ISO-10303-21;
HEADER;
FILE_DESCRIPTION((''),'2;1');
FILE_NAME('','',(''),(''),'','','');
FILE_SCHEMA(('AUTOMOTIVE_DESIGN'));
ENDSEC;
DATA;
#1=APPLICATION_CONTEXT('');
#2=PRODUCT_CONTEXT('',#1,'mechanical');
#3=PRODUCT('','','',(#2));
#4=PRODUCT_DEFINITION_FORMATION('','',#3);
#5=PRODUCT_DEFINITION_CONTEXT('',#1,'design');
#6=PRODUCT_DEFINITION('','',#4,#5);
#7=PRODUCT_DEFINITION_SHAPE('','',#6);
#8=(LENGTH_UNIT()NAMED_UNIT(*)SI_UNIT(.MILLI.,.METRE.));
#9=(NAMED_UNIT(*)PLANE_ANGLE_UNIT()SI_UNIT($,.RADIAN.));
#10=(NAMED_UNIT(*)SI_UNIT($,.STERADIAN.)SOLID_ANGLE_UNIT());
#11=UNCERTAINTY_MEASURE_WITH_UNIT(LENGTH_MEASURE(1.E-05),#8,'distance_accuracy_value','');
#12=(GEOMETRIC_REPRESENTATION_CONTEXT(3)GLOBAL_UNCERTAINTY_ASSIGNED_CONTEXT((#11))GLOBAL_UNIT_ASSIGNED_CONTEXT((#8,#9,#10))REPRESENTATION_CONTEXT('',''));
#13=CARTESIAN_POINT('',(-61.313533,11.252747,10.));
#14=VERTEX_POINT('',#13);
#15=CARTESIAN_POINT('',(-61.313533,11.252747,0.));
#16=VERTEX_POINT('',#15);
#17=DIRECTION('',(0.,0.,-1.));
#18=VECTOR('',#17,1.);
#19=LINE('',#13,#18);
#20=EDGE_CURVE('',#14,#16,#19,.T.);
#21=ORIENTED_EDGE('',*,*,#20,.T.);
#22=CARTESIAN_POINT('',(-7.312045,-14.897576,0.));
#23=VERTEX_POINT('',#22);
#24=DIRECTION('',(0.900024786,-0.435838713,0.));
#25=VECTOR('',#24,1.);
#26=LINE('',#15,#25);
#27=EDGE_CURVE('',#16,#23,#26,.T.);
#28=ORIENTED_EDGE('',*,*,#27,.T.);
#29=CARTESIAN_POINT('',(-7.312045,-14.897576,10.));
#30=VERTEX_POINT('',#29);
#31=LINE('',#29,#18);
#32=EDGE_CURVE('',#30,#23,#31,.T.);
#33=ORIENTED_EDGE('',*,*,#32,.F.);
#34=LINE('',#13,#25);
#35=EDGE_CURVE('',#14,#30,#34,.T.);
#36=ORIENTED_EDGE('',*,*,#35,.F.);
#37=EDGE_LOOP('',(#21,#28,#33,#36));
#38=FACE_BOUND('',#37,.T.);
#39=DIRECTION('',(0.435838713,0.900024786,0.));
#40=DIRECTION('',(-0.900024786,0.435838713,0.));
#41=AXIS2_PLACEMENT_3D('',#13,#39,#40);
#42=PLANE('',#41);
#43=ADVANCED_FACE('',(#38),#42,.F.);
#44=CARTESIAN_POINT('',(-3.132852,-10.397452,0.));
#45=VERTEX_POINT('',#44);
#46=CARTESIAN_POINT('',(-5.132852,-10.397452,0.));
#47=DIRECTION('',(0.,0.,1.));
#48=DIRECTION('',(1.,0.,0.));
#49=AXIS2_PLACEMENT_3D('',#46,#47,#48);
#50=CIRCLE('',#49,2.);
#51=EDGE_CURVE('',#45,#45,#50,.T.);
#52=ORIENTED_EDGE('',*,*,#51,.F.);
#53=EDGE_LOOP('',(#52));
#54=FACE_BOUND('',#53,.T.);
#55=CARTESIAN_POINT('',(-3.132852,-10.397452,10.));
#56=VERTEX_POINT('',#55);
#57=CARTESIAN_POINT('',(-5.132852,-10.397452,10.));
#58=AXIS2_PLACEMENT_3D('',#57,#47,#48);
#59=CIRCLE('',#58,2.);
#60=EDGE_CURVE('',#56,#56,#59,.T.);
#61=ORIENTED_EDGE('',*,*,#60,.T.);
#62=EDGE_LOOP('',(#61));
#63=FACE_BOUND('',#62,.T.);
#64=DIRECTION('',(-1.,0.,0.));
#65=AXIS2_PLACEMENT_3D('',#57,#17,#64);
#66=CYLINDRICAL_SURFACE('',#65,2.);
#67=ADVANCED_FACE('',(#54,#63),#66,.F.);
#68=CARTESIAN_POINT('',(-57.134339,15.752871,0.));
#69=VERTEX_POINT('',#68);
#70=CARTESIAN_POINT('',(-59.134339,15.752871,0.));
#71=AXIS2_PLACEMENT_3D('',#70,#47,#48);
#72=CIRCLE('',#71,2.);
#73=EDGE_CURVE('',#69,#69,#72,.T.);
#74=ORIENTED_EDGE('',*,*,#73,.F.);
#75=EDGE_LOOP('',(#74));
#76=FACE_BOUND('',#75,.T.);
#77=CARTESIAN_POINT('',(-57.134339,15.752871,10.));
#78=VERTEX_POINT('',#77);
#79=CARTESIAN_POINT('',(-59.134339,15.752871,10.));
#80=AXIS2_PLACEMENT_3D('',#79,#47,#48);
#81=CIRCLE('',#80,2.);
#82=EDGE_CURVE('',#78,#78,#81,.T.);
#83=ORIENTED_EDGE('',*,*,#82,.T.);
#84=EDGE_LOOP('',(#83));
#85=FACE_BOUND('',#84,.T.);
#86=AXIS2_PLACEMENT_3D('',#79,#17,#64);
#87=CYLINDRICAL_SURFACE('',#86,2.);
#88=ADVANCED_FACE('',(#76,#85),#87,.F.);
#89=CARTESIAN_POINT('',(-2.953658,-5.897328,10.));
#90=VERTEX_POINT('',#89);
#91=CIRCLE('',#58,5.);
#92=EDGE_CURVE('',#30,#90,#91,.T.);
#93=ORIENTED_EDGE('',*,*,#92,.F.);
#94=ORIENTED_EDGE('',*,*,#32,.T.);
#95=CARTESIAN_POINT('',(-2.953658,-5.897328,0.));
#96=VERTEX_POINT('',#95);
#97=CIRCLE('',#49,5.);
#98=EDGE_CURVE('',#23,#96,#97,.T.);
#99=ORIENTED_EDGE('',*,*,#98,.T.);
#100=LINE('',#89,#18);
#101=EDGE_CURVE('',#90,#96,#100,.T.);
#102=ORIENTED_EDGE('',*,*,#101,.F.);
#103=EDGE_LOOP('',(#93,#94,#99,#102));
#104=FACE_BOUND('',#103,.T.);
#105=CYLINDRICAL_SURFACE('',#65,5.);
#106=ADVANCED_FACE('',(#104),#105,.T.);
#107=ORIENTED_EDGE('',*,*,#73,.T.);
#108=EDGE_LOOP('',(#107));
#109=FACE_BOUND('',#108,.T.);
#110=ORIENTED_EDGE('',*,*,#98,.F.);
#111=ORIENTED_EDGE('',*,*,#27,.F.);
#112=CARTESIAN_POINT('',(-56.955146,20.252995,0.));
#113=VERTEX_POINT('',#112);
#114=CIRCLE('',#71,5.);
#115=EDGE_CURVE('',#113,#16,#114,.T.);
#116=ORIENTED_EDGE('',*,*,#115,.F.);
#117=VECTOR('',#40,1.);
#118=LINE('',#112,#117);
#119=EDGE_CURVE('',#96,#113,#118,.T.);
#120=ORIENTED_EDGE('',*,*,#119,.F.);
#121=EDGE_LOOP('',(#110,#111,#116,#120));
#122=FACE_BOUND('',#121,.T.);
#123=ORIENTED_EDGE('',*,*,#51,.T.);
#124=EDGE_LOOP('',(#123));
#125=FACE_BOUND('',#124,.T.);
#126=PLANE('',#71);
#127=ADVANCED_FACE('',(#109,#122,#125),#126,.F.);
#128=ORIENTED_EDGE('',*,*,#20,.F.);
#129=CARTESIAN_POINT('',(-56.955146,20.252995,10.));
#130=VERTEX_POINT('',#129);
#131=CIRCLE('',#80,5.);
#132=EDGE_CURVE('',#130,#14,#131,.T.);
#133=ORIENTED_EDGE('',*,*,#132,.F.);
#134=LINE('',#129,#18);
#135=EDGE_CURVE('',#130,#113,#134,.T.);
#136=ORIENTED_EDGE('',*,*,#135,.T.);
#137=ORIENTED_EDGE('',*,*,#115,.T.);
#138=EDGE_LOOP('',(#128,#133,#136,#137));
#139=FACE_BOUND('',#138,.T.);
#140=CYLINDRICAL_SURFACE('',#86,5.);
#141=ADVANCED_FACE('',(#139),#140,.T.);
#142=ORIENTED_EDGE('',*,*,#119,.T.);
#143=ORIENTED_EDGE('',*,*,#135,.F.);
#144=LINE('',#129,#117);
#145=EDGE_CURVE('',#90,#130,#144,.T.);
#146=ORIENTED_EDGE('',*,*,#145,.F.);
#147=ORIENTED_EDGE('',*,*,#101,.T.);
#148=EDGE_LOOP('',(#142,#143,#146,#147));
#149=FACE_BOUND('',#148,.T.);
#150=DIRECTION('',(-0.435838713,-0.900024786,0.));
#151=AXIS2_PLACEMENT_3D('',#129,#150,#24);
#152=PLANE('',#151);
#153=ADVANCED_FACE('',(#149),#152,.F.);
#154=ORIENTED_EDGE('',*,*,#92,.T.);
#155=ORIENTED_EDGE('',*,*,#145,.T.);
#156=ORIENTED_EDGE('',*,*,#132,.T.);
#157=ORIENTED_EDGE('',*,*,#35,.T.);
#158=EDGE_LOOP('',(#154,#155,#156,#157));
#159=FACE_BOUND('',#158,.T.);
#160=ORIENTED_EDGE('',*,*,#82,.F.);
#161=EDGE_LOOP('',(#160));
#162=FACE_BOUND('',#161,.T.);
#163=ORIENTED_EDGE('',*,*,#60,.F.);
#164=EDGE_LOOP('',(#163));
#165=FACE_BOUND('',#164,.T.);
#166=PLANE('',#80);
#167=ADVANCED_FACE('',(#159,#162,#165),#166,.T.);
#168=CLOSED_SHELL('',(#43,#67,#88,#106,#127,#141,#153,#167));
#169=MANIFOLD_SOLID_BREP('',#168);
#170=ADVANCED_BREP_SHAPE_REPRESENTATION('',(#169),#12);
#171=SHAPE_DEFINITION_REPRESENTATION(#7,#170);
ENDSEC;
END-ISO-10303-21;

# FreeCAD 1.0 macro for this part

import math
import FreeCAD as App
import Part
import Sketcher
from FreeCAD import Vector

doc = App.newDocument("Part")
body = doc.addObject("PartDesign::Body", "Body")

sketch1 = body.newObject("Sketcher::SketchObject", "Sketch")
sketch1.AttachmentSupport = (doc.getObject("XY_Plane"), [""])
sketch1.MapMode = "FlatFace"
sketch1.addGeometry([
    Part.LineSegment(Vector(-61.3, 11.3, 0), Vector(-7.3, -14.9, 0)),
    Part.ArcOfCircle(Part.Circle(Vector(-5.1, -10.4, 0), Vector(0, 0, 1), 5), math.radians(-116), math.radians(64)),
    Part.LineSegment(Vector(-3, -5.9, 0), Vector(-57, 20.3, 0)),
    Part.ArcOfCircle(Part.Circle(Vector(-59.1, 15.8, 0), Vector(0, 0, 1), 5), math.radians(64), math.radians(244)),
    Part.Circle(Vector(-5.1, -10.4, 0), Vector(0, 0, 1), 2),
    Part.Circle(Vector(-59.1, 15.8, 0), Vector(0, 0, 1), 2),
], False)
sketch1.addConstraint([
    Sketcher.Constraint("Tangent", 0, 2, 1, 1),
    Sketcher.Constraint("Tangent", 1, 2, 2, 1),
    Sketcher.Constraint("Tangent", 2, 2, 3, 1),
    Sketcher.Constraint("Tangent", 3, 2, 0, 1),
    Sketcher.Constraint("Coincident", 4, 3, 1, 3),
    Sketcher.Constraint("Coincident", 5, 3, 3, 3),
    Sketcher.Constraint("Equal", 1, 3),
    Sketcher.Constraint("Equal", 4, 5),
    Sketcher.Constraint("Diameter", 4, 4.0),
    Sketcher.Constraint("Radius", 1, 5.0),
    Sketcher.Constraint("Distance", 0, 60.0),
    Sketcher.Constraint("DistanceY", 1, 2, 3, 3, 21.650199),
    Sketcher.Constraint("DistanceX", 1, 3, -1, 1, 5.132852),
    Sketcher.Constraint("DistanceY", 1, 3, -1, 1, 10.397452),
])
pad1 = body.newObject("PartDesign::Pad", "Pad")
pad1.Profile = sketch1
pad1.Length = 10

doc.recompute()
